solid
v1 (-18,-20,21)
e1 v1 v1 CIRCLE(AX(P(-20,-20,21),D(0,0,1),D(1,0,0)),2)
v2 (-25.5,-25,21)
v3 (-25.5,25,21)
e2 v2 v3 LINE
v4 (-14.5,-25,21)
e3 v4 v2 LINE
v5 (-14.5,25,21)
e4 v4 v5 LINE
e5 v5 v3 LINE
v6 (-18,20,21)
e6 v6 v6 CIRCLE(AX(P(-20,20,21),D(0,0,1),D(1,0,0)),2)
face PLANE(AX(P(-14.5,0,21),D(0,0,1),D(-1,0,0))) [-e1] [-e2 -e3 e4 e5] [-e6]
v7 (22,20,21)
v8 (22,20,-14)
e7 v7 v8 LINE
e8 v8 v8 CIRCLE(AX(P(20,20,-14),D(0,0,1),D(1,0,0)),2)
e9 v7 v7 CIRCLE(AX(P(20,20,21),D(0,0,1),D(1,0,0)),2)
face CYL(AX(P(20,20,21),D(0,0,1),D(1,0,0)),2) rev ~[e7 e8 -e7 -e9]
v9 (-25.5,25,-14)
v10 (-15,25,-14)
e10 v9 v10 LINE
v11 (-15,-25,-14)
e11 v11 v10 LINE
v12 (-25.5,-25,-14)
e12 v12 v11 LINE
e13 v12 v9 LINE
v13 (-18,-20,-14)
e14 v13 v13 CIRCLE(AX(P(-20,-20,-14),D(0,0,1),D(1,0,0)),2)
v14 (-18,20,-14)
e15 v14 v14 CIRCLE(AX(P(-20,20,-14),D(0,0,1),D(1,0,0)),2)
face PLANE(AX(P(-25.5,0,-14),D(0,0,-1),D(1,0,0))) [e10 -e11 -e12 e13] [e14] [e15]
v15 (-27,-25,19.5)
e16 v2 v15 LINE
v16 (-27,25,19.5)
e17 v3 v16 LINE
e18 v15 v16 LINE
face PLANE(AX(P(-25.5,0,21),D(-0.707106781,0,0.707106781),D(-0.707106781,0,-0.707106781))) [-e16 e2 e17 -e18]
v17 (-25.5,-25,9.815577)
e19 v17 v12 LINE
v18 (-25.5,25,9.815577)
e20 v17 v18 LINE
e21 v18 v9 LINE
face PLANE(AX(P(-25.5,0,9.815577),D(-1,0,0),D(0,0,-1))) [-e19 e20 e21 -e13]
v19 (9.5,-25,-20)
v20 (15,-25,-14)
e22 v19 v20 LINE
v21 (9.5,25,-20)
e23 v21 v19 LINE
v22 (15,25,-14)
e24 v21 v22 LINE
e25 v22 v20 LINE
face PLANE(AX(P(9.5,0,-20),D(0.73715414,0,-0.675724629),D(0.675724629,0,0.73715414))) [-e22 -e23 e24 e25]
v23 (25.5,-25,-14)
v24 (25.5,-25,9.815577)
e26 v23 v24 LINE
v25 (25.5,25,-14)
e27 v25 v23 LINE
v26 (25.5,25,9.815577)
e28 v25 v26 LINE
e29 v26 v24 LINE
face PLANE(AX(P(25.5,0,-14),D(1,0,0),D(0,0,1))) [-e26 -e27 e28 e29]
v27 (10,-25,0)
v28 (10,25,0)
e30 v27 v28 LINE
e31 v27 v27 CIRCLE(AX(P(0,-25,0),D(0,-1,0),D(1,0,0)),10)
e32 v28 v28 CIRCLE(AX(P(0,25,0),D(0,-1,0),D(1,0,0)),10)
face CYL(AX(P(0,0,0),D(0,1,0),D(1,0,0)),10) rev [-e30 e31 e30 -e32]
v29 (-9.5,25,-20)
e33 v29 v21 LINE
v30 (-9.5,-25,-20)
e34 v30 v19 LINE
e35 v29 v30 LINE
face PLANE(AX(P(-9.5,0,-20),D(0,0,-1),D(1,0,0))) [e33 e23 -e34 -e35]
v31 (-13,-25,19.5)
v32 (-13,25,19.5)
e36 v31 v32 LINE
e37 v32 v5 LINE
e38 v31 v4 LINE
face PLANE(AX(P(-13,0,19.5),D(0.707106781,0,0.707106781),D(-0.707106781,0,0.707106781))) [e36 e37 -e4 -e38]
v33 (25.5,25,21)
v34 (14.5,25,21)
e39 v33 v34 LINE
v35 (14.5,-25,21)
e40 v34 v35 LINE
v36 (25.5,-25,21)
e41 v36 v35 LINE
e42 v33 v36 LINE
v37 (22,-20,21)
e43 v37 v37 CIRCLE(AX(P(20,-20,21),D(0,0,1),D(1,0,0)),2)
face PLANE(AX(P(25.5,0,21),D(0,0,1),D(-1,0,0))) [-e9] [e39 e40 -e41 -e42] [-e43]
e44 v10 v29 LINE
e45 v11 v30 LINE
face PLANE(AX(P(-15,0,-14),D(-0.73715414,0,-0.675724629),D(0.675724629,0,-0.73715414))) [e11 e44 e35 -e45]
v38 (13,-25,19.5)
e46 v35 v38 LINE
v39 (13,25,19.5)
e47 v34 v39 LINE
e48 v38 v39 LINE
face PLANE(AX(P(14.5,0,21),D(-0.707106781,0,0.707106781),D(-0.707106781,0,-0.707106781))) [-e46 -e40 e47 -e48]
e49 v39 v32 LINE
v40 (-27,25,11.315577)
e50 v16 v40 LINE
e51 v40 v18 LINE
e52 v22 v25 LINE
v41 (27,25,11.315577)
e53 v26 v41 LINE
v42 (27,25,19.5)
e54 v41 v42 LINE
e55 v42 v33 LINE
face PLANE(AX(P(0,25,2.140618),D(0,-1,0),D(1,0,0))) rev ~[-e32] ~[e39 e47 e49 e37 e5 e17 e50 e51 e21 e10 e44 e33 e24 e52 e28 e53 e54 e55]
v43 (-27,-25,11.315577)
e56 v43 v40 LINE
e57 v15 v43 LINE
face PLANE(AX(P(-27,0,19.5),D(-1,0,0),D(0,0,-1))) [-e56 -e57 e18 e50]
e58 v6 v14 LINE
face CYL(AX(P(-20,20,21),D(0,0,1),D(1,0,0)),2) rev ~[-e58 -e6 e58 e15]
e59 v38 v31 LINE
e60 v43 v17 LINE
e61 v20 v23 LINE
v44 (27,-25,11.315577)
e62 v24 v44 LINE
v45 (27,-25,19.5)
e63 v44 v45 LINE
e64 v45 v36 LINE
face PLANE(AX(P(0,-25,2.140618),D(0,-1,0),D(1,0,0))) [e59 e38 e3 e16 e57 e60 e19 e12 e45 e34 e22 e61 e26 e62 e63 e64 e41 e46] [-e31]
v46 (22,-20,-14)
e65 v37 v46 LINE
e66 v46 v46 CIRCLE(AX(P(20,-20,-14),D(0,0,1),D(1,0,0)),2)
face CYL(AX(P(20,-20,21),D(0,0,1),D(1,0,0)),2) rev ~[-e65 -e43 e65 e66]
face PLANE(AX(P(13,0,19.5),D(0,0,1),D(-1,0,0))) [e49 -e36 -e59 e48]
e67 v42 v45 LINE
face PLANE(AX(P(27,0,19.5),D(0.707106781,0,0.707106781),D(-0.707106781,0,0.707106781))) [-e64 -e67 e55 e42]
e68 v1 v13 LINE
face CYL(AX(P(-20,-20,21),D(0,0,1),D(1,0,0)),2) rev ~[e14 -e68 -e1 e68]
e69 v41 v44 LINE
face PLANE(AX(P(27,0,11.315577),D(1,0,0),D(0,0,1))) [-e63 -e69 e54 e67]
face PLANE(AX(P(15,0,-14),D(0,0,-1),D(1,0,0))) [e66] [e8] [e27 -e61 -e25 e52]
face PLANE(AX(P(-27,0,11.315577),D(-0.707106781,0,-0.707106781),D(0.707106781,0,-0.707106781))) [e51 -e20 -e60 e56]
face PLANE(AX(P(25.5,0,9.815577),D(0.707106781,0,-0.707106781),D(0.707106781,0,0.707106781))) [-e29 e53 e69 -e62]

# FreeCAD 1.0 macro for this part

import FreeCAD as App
import Part
import Sketcher


def add_polygon(sketch, points):
    """Adds a closed chain of lines whose ends are joined by coincident constraints."""
    first, n = sketch.GeometryCount, len(points)
    for a, b in zip(points, points[1:] + points[:1]):
        sketch.addGeometry(Part.LineSegment(App.Vector(*a, 0), App.Vector(*b, 0)), False)
    for i in range(n):
        sketch.addConstraint(Sketcher.Constraint("Coincident", first + i, 2, first + (i + 1) % n, 1))

doc = App.newDocument("Part")
body = doc.addObject("PartDesign::Body", "Body")

sketch1 = body.newObject("Sketcher::SketchObject", "Sketch")
sketch1.AttachmentSupport = (doc.getObject("XZ_Plane"), [""])
sketch1.MapMode = "FlatFace"
add_polygon(sketch1, [(-15, -14), (-9.5, -20), (9.5, -20), (15, -14), (25.5, -14), (25.5, 9.815577), (27, 11.315577), (27, 19.5), (25.5, 21), (14.5, 21), (13, 19.5), (-13, 19.5), (-14.5, 21), (-25.5, 21), (-27, 19.5), (-27, 11.315577), (-25.5, 9.815577), (-25.5, -14)])
sketch1.addGeometry(Part.Circle(App.Vector(0, 0, 0), App.Vector(0, 0, 1), 10), False)
sketch1.addConstraint([
    Sketcher.Constraint("Horizontal", 1),
    Sketcher.Constraint("Horizontal", 3),
    Sketcher.Constraint("Vertical", 4),
    Sketcher.Constraint("Vertical", 6),
    Sketcher.Constraint("Horizontal", 8),
    Sketcher.Constraint("Horizontal", 10),
    Sketcher.Constraint("Horizontal", 12),
    Sketcher.Constraint("Vertical", 14),
    Sketcher.Constraint("Vertical", 16),
    Sketcher.Constraint("Horizontal", 17),
    Sketcher.Constraint("Coincident", 18, 3, -1, 1),
    Sketcher.Constraint("Symmetric", 8, 2, 11, 2, -2),
    Sketcher.Constraint("Symmetric", 6, 2, 13, 2, -2),
    Sketcher.Constraint("Symmetric", 4, 2, 15, 2, -2),
    Sketcher.Constraint("Symmetric", 2, 2, 17, 2, -2),
    Sketcher.Constraint("Perpendicular", 5, 7),
    Sketcher.Constraint("Perpendicular", 7, 9),
    Sketcher.Constraint("Perpendicular", 9, 11),
    Sketcher.Constraint("Perpendicular", 11, 13),
    Sketcher.Constraint("Perpendicular", 13, 15),
    Sketcher.Constraint("Horizontal", 6, 2, 9, 2),
    Sketcher.Constraint("Horizontal", 5, 2, 14, 2),
    Sketcher.Constraint("Vertical", 4, 2, 7, 2),
    Sketcher.Constraint("Equal", 0, 2),
    Sketcher.Constraint("Diameter", 18, 20.0),
    Sketcher.Constraint("DistanceX", 1, 1, 1, 2, 19.0),
    Sketcher.Constraint("DistanceX", 8, 2, 8, 1, 11.0),
    Sketcher.Constraint("DistanceX", 10, 2, 10, 1, 26.0),
    Sketcher.Constraint("DistanceX", 3, 1, 3, 2, 10.5),
    Sketcher.Constraint("DistanceY", 0, 2, -1, 1, 20.0),
    Sketcher.Constraint("DistanceX", -1, 1, 2, 2, 15.0),
    Sketcher.Constraint("DistanceY", 2, 2, -1, 1, 14.0),
    Sketcher.Constraint("DistanceY", -1, 1, 7, 2, 21.0),
    Sketcher.Constraint("DistanceY", 4, 1, 4, 2, 23.815577),
])
pad1 = body.newObject("PartDesign::Pad", "Pad")
pad1.Profile = sketch1
pad1.Length = 50
pad1.Midplane = True

sketch2 = body.newObject("Sketcher::SketchObject", "Sketch001")
sketch2.AttachmentSupport = (doc.getObject("XY_Plane"), [""])
sketch2.MapMode = "FlatFace"
sketch2.AttachmentOffset = App.Placement(App.Vector(0, 0, 21), App.Rotation())
sketch2.addGeometry([
    Part.Circle(App.Vector(-20, 20, 0), App.Vector(0, 0, 1), 2),
    Part.Circle(App.Vector(20, 20, 0), App.Vector(0, 0, 1), 2),
    Part.Circle(App.Vector(20, -20, 0), App.Vector(0, 0, 1), 2),
    Part.Circle(App.Vector(-20, -20, 0), App.Vector(0, 0, 1), 2),
], False)
sketch2.addConstraint([
    Sketcher.Constraint("Equal", 0, 1),
    Sketcher.Constraint("Equal", 1, 2),
    Sketcher.Constraint("Equal", 2, 3),
    Sketcher.Constraint("Symmetric", 0, 3, 2, 3, -1, 1),
    Sketcher.Constraint("Symmetric", 1, 3, 3, 3, -1, 1),
    Sketcher.Constraint("Symmetric", 0, 3, 1, 3, -2),
    Sketcher.Constraint("Diameter", 0, 4.0),
    Sketcher.Constraint("DistanceX", 0, 3, -1, 1, 20.0),
    Sketcher.Constraint("DistanceY", -1, 1, 0, 3, 20.0),
])
pocket1 = body.newObject("PartDesign::Pocket", "Pocket")
pocket1.Profile = sketch2
pocket1.Length = 40

doc.recompute()
